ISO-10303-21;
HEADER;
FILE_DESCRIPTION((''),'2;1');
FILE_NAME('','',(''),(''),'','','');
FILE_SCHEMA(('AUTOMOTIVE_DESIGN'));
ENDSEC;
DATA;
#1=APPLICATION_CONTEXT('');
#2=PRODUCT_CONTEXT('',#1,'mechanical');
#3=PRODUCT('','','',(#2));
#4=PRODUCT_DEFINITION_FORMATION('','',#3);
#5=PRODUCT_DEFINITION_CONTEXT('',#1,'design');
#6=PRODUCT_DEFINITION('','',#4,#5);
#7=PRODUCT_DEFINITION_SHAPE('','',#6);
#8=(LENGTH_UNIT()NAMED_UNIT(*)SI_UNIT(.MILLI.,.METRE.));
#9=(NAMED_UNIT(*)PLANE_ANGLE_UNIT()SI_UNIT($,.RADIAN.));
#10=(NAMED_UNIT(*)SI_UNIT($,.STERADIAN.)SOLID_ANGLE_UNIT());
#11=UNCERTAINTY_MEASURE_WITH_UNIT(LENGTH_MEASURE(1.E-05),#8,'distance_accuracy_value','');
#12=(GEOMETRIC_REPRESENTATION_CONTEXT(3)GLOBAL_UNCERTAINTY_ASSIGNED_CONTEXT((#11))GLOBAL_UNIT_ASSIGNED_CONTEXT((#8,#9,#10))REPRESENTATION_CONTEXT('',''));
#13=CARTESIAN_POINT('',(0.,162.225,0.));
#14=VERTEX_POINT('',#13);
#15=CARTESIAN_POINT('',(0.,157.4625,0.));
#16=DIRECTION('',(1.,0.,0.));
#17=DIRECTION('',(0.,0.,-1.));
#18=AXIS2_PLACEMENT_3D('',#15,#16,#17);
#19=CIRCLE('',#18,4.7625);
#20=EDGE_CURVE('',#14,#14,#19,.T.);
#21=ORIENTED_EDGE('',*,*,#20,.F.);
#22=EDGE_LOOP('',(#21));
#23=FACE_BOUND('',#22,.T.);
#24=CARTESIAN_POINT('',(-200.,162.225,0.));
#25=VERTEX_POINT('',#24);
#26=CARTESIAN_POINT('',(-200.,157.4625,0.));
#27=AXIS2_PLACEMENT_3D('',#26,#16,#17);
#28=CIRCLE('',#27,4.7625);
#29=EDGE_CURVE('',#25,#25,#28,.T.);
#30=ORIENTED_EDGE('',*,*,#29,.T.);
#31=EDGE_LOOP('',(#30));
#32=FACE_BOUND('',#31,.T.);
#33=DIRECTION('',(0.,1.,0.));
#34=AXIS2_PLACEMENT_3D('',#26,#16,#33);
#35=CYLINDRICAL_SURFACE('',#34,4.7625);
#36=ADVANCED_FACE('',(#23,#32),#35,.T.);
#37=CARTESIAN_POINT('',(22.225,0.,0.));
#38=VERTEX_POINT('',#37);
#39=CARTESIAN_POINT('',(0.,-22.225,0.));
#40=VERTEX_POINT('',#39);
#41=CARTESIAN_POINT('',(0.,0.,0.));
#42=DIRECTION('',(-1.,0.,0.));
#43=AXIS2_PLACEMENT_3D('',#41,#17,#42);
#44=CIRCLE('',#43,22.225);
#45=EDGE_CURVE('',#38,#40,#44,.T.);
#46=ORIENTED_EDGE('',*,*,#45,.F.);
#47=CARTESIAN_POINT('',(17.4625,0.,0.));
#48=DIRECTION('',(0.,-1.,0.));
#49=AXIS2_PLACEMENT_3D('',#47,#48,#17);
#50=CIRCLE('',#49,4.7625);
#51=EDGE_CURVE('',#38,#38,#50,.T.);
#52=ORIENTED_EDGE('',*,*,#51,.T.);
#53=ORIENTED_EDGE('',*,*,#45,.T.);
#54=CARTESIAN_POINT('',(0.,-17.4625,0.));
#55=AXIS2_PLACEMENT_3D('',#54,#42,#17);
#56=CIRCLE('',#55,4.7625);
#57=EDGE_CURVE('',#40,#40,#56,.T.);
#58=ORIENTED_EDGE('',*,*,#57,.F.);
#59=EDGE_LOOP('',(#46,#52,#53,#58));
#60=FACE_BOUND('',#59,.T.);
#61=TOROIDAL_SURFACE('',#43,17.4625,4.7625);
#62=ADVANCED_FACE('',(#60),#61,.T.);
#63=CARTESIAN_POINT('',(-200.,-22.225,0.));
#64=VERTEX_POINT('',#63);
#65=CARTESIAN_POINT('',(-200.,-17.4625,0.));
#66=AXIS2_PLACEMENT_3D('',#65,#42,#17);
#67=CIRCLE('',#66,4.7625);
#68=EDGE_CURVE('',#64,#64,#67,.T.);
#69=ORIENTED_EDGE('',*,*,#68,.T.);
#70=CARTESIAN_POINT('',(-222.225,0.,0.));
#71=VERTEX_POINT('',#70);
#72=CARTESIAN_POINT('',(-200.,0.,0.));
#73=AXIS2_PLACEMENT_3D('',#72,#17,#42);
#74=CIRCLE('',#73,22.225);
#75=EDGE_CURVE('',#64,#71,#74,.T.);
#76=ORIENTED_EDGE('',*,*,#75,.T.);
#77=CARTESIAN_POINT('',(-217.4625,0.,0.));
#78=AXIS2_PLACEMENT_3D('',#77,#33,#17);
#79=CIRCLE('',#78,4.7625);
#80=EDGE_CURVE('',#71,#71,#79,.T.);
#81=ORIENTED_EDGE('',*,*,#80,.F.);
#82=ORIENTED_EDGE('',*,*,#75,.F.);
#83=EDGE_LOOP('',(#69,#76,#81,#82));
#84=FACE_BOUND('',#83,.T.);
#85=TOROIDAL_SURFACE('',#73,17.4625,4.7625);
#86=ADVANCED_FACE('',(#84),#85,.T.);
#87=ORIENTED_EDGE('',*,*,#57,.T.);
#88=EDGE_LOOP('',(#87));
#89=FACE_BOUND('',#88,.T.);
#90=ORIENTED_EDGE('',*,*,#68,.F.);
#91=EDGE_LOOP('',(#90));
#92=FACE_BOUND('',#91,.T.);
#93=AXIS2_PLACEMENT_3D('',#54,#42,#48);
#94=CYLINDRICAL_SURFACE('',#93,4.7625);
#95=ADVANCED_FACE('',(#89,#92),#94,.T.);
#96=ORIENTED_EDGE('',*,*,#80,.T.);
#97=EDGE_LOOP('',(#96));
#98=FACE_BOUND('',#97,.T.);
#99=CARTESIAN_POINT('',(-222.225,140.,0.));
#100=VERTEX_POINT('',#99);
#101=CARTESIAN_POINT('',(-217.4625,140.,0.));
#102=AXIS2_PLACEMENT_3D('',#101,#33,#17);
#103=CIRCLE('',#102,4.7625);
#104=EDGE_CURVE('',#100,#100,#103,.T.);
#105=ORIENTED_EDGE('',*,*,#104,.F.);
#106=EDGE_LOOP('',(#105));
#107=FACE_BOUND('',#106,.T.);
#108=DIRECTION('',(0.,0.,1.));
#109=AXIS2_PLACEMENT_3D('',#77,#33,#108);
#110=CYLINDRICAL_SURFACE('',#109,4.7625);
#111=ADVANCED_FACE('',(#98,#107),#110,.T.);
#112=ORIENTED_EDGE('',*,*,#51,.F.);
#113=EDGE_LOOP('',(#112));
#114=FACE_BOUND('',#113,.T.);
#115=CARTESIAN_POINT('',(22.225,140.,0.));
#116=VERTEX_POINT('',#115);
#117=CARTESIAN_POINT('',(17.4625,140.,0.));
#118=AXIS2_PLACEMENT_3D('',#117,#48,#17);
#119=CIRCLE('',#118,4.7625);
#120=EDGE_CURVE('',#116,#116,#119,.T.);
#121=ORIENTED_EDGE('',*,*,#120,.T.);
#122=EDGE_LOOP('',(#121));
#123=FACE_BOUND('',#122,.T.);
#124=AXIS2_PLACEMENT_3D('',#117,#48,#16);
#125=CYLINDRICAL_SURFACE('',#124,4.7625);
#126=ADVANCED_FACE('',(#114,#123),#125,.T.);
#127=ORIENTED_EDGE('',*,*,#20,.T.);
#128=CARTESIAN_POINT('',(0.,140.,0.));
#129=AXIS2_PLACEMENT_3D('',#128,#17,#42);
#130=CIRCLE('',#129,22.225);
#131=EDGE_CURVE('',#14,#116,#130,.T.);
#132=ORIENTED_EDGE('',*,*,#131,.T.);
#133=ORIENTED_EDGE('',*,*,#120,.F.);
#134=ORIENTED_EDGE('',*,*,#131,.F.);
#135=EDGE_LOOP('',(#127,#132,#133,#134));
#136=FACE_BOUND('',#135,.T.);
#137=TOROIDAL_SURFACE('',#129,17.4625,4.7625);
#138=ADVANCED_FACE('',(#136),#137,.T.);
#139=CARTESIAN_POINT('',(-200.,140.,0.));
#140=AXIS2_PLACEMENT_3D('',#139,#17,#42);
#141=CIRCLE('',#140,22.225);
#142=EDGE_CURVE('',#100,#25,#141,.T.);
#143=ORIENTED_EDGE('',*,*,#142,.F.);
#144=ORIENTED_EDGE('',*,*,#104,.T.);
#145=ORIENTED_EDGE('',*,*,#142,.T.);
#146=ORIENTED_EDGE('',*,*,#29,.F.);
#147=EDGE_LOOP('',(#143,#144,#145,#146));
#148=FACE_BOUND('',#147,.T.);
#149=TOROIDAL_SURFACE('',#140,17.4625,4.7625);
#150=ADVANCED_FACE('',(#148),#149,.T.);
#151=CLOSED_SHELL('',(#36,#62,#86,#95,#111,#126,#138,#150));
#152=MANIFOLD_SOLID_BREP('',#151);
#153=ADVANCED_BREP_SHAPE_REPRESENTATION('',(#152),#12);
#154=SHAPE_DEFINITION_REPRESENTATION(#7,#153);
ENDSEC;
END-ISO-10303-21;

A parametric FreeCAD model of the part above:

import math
import FreeCAD as App
import Part
import Sketcher

doc = App.newDocument("Part")
params = doc.addObject("Spreadsheet::Sheet", "Params")
for row, (alias, value) in enumerate([
    ("sketch2_width", "200 mm"),
    ("sketch2_height", "140 mm"),
], start=1):
    params.set(f"A{row}", alias)
    params.set(f"B{row}", "=" + value)
    params.setAlias(f"B{row}", alias)

body = doc.addObject("PartDesign::Body", "Body")

# Sketch on YZ plane
sketch1 = body.newObject("Sketcher::SketchObject", "Sketch")
sketch1.AttachmentSupport = (doc.getObject("YZ_Plane"), [""])
sketch1.MapMode = "FlatFace"
sketch1.AttachmentOffset = App.Placement(App.Vector(0, 0, -200), App.Rotation())
sketch1.addGeometry(Part.Circle(App.Vector(157.4625, 0, 0), App.Vector(0, 0, 1), 4.7625), False)
sketch1.addConstraint([
    Sketcher.Constraint("PointOnObject", 0, 3, -1),
    Sketcher.Constraint("Diameter", 0, 9.525),
    Sketcher.Constraint("DistanceX", -1, 1, 0, 3, 157.4625),
])

# Sketch on XY plane
sketch2 = body.newObject("Sketcher::SketchObject", "Sketch001")
sketch2.AttachmentSupport = (doc.getObject("XY_Plane"), [""])
sketch2.MapMode = "FlatFace"
sketch2.addGeometry([
    Part.LineSegment(App.Vector(-200, 157.4625, 0), App.Vector(0, 157.4625, 0)),  # 0
    Part.ArcOfCircle(Part.Circle(App.Vector(0, 140, 0), App.Vector(0, 0, 1), 17.4625), math.radians(0), math.radians(90)),  # 1
    Part.LineSegment(App.Vector(17.4625, 140, 0), App.Vector(17.4625, 0, 0)),  # 2
    Part.ArcOfCircle(Part.Circle(App.Vector(0, 0, 0), App.Vector(0, 0, 1), 17.4625), math.radians(-90), math.radians(0)),  # 3
    Part.LineSegment(App.Vector(0, -17.4625, 0), App.Vector(-200, -17.4625, 0)),  # 4
    Part.ArcOfCircle(Part.Circle(App.Vector(-200, 0, 0), App.Vector(0, 0, 1), 17.4625), math.radians(-180), math.radians(-90)),  # 5
    Part.LineSegment(App.Vector(-217.4625, 0, 0), App.Vector(-217.4625, 140, 0)),  # 6
    Part.ArcOfCircle(Part.Circle(App.Vector(-200, 140, 0), App.Vector(0, 0, 1), 17.4625), math.radians(90), math.radians(180)),  # 7
], False)
sketch2.addConstraint([
    Sketcher.Constraint("Tangent", 0, 2, 1, 2),
    Sketcher.Constraint("Tangent", 1, 1, 2, 1),
    Sketcher.Constraint("Tangent", 2, 2, 3, 2),
    Sketcher.Constraint("Tangent", 3, 1, 4, 1),
    Sketcher.Constraint("Tangent", 4, 2, 5, 2),
    Sketcher.Constraint("Tangent", 5, 1, 6, 1),
    Sketcher.Constraint("Tangent", 6, 2, 7, 2),
    Sketcher.Constraint("Tangent", 7, 1, 0, 1),
    Sketcher.Constraint("Horizontal", 0),
    Sketcher.Constraint("Vertical", 2),
    Sketcher.Constraint("Horizontal", 4),
    Sketcher.Constraint("Vertical", 6),
    Sketcher.Constraint("Coincident", 3, 3, -1, 1),
    Sketcher.Constraint("Equal", 1, 3),
    Sketcher.Constraint("Equal", 3, 5),
    Sketcher.Constraint("Equal", 5, 7),
    Sketcher.Constraint("DistanceX", 0, 1, 0, 2, 200.0),
    Sketcher.Constraint("DistanceY", 2, 2, 2, 1, 140.0),
    Sketcher.Constraint("Radius", 1, 17.4625),
])
sketch2.setExpression("Constraints[16]", "Params.sketch2_width")
sketch2.setExpression("Constraints[17]", "Params.sketch2_height")
doc.recompute()

additivepipe = body.newObject("PartDesign::AdditivePipe", "AdditivePipe")
additivepipe.Profile = sketch1
additivepipe.Spine = (sketch2, ["Edge1", "Edge2", "Edge3", "Edge4", "Edge5", "Edge6", "Edge7", "Edge8"])

doc.recompute()
